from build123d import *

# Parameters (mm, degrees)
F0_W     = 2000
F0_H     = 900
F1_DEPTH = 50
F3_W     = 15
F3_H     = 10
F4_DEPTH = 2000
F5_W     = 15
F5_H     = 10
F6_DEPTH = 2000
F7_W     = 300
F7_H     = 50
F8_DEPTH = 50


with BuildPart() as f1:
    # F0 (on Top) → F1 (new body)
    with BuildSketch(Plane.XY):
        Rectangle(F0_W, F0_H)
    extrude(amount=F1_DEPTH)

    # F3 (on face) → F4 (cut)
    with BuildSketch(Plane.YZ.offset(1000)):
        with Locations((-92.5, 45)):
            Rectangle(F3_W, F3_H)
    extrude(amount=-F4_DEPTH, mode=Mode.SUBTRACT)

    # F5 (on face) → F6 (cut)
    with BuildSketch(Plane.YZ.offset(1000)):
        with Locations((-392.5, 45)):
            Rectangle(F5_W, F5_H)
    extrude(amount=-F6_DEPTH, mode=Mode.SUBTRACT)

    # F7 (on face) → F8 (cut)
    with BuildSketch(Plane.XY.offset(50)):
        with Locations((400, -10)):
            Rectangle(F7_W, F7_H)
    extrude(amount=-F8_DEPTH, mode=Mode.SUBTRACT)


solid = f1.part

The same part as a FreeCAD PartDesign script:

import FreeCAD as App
import Part
import Sketcher
Q = App.Units.Quantity


def add_polygon(sketch, points):
    """Adds a closed chain of lines whose ends are joined by coincident constraints."""
    first, n = sketch.GeometryCount, len(points)
    for a, b in zip(points, points[1:] + points[:1]):
        sketch.addGeometry(Part.LineSegment(App.Vector(*a, 0), App.Vector(*b, 0)), False)
    for i in range(n):
        sketch.addConstraint(Sketcher.Constraint("Coincident", first + i, 2, first + (i + 1) % n, 1))

doc = App.newDocument("Part")
params = doc.addObject("Spreadsheet::Sheet", "Params")
for row, (alias, value) in enumerate([
    ("sketch1_width", "2000 mm"),
    ("sketch1_height", "900 mm"),
    ("pad1_length", "50 mm"),
    ("sketch2_width", "15 mm"),
    ("sketch2_height", "10 mm"),
    ("pocket1_length", "2000 mm"),
    ("sketch3_width", "15 mm"),
    ("sketch3_height", "10 mm"),
    ("pocket2_length", "2000 mm"),
    ("sketch4_width", "300 mm"),
    ("sketch4_height", "50 mm"),
    ("pocket3_length", "50 mm"),
], start=1):
    params.set(f"A{row}", alias)
    params.set(f"B{row}", "=" + value)
    params.setAlias(f"B{row}", alias)

body = doc.addObject("PartDesign::Body", "Body")

sketch1 = doc.addObject("Sketcher::SketchObject", "Sketch")
body.addObject(sketch1)
sketch1.AttachmentSupport = (doc.XY_Plane, [""])
sketch1.MapMode = "FlatFace"
add_polygon(sketch1, [(-1000, 450), (-1000, -450), (1000, -450), (1000, 450)])
sketch1.addConstraint([
    Sketcher.Constraint("Vertical", 0),
    Sketcher.Constraint("Horizontal", 1),
    Sketcher.Constraint("Vertical", 2),
    Sketcher.Constraint("Horizontal", 3),
    Sketcher.Constraint("Symmetric", 0, 2, 2, 2, -1, 1),
    Sketcher.Constraint("DistanceX", 1, 1, 1, 2, Q("2000 mm")),
    Sketcher.Constraint("DistanceY", 0, 2, 0, 1, Q("900 mm")),
])
sketch1.setExpression("Constraints[9]", "Params.sketch1_width")
sketch1.setExpression("Constraints[10]", "Params.sketch1_height")
pad1 = doc.addObject("PartDesign::Pad", "Pad")
body.addObject(pad1)
pad1.Profile = sketch1
pad1.setExpression("Length", "Params.pad1_length")

sketch2 = doc.addObject("Sketcher::SketchObject", "Sketch001")
body.addObject(sketch2)
sketch2.AttachmentSupport = (doc.YZ_Plane, [""])
sketch2.MapMode = "FlatFace"
sketch2.AttachmentOffset = App.Placement(App.Vector(0, 0, 1000), App.Rotation())
add_polygon(sketch2, [(-100, 50), (-100, 40), (-85, 40), (-85, 50)])
sketch2.addConstraint([
    Sketcher.Constraint("Vertical", 0),
    Sketcher.Constraint("Horizontal", 1),
    Sketcher.Constraint("Vertical", 2),
    Sketcher.Constraint("Horizontal", 3),
    Sketcher.Constraint("DistanceX", 1, 1, 1, 2, Q("15 mm")),
    Sketcher.Constraint("DistanceY", 0, 2, 0, 1, Q("10 mm")),
    Sketcher.Constraint("DistanceX", 0, 2, -1, 1, Q("100 mm")),
    Sketcher.Constraint("DistanceY", -1, 1, 0, 2, Q("40 mm")),
])
sketch2.setExpression("Constraints[8]", "Params.sketch2_width")
sketch2.setExpression("Constraints[9]", "Params.sketch2_height")
pocket1 = doc.addObject("PartDesign::Pocket", "Pocket")
body.addObject(pocket1)
pocket1.Profile = sketch2
pocket1.setExpression("Length", "Params.pocket1_length")

sketch3 = doc.addObject("Sketcher::SketchObject", "Sketch002")
body.addObject(sketch3)
sketch3.AttachmentSupport = (doc.YZ_Plane, [""])
sketch3.MapMode = "FlatFace"
sketch3.AttachmentOffset = App.Placement(App.Vector(0, 0, 1000), App.Rotation())
add_polygon(sketch3, [(-400, 50), (-400, 40), (-385, 40), (-385, 50)])
sketch3.addConstraint([
    Sketcher.Constraint("Vertical", 0),
    Sketcher.Constraint("Horizontal", 1),
    Sketcher.Constraint("Vertical", 2),
    Sketcher.Constraint("Horizontal", 3),
    Sketcher.Constraint("DistanceX", 1, 1, 1, 2, Q("15 mm")),
    Sketcher.Constraint("DistanceY", 0, 2, 0, 1, Q("10 mm")),
    Sketcher.Constraint("DistanceX", 0, 2, -1, 1, Q("400 mm")),
    Sketcher.Constraint("DistanceY", -1, 1, 0, 2, Q("40 mm")),
])
sketch3.setExpression("Constraints[8]", "Params.sketch3_width")
sketch3.setExpression("Constraints[9]", "Params.sketch3_height")
pocket2 = doc.addObject("PartDesign::Pocket", "Pocket001")
body.addObject(pocket2)
pocket2.Profile = sketch3
pocket2.setExpression("Length", "Params.pocket2_length")

sketch4 = doc.addObject("Sketcher::SketchObject", "Sketch003")
body.addObject(sketch4)
sketch4.AttachmentSupport = (doc.XY_Plane, [""])
sketch4.MapMode = "FlatFace"
sketch4.AttachmentOffset = App.Placement(App.Vector(0, 0, 50), App.Rotation())
add_polygon(sketch4, [(250, 15), (250, -35), (550, -35), (550, 15)])
sketch4.addConstraint([
    Sketcher.Constraint("Vertical", 0),
    Sketcher.Constraint("Horizontal", 1),
    Sketcher.Constraint("Vertical", 2),
    Sketcher.Constraint("Horizontal", 3),
    Sketcher.Constraint("DistanceX", 1, 1, 1, 2, Q("300 mm")),
    Sketcher.Constraint("DistanceY", 0, 2, 0, 1, Q("50 mm")),
    Sketcher.Constraint("DistanceX", -1, 1, 0, 2, Q("250 mm")),
    Sketcher.Constraint("DistanceY", 0, 2, -1, 1, Q("35 mm")),
])
sketch4.setExpression("Constraints[8]", "Params.sketch4_width")
sketch4.setExpression("Constraints[9]", "Params.sketch4_height")
pocket3 = doc.addObject("PartDesign::Pocket", "Pocket002")
body.addObject(pocket3)
pocket3.Profile = sketch4
pocket3.setExpression("Length", "Params.pocket3_length")

doc.recompute()
